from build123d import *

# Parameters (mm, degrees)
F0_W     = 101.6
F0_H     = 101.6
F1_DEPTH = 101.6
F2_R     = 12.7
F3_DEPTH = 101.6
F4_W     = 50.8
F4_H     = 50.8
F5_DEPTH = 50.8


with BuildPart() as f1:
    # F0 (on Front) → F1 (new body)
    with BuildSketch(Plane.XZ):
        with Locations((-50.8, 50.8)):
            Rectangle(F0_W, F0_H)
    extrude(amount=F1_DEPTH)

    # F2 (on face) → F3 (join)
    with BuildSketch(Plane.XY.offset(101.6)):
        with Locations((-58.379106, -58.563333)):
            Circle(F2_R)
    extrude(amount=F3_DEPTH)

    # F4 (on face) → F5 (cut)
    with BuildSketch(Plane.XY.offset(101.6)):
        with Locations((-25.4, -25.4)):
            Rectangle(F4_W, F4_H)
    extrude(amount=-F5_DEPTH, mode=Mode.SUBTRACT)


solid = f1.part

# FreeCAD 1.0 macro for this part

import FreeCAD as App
import Part
import Sketcher
Q = App.Units.Quantity


def add_polygon(sketch, points):
    """Adds a closed chain of lines whose ends are joined by coincident constraints."""
    first, n = sketch.GeometryCount, len(points)
    for a, b in zip(points, points[1:] + points[:1]):
        sketch.addGeometry(Part.LineSegment(App.Vector(*a, 0), App.Vector(*b, 0)), False)
    for i in range(n):
        sketch.addConstraint(Sketcher.Constraint("Coincident", first + i, 2, first + (i + 1) % n, 1))

doc = App.newDocument("Part")
body = doc.addObject("PartDesign::Body", "Body")

sketch1 = body.newObject("Sketcher::SketchObject", "Sketch")
sketch1.AttachmentSupport = (doc.getObject("XZ_Plane"), [""])
sketch1.MapMode = "FlatFace"
add_polygon(sketch1, [(-102, 102), (-102, 0), (0, 0), (0, 102)])
sketch1.addConstraint(Sketcher.Constraint("Vertical", 0))
sketch1.addConstraint(Sketcher.Constraint("Horizontal", 1))
sketch1.addConstraint(Sketcher.Constraint("Vertical", 2))
sketch1.addConstraint(Sketcher.Constraint("Horizontal", 3))
sketch1.addConstraint(Sketcher.Constraint("Coincident", 1, 2, -1, 1))
sketch1.addConstraint(Sketcher.Constraint("Equal", 3, 0))
sketch1.addConstraint(Sketcher.Constraint("DistanceX", 1, 1, 1, 2, Q("4 in")))
pad1 = body.newObject("PartDesign::Pad", "Pad")
pad1.Profile = sketch1
pad1.Length = Q("4 in")

sketch2 = body.newObject("Sketcher::SketchObject", "Sketch001")
sketch2.AttachmentSupport = (doc.getObject("XY_Plane"), [""])
sketch2.MapMode = "FlatFace"
sketch2.AttachmentOffset = App.Placement(App.Vector(0, 0, 4 * 25.4), App.Rotation())
sketch2.addGeometry(Part.Circle(App.Vector(-58, -59, 0), App.Vector(0, 0, 1), 13), False)
sketch2.addConstraint(Sketcher.Constraint("Diameter", 0, Q("1 in")))
sketch2.addConstraint(Sketcher.Constraint("DistanceX", 0, 3, -1, 1, Q("58.379106 mm")))
sketch2.addConstraint(Sketcher.Constraint("DistanceY", 0, 3, -1, 1, Q("58.563333 mm")))
pad2 = body.newObject("PartDesign::Pad", "Pad001")
pad2.Profile = sketch2
pad2.Length = Q("4 in")

sketch3 = body.newObject("Sketcher::SketchObject", "Sketch002")
sketch3.AttachmentSupport = (doc.getObject("XY_Plane"), [""])
sketch3.MapMode = "FlatFace"
sketch3.AttachmentOffset = App.Placement(App.Vector(0, 0, 4 * 25.4), App.Rotation())
add_polygon(sketch3, [(-51, 0), (-51, -51), (0, -51), (0, 0)])
sketch3.addConstraint(Sketcher.Constraint("Vertical", 0))
sketch3.addConstraint(Sketcher.Constraint("Horizontal", 1))
sketch3.addConstraint(Sketcher.Constraint("Vertical", 2))
sketch3.addConstraint(Sketcher.Constraint("Horizontal", 3))
sketch3.addConstraint(Sketcher.Constraint("Coincident", 2, 2, -1, 1))
sketch3.addConstraint(Sketcher.Constraint("Equal", 3, 0))
sketch3.addConstraint(Sketcher.Constraint("DistanceX", 1, 1, 1, 2, Q("2 in")))
pocket1 = body.newObject("PartDesign::Pocket", "Pocket")
pocket1.Profile = sketch3
pocket1.Length = Q("2 in")

doc.recompute()
